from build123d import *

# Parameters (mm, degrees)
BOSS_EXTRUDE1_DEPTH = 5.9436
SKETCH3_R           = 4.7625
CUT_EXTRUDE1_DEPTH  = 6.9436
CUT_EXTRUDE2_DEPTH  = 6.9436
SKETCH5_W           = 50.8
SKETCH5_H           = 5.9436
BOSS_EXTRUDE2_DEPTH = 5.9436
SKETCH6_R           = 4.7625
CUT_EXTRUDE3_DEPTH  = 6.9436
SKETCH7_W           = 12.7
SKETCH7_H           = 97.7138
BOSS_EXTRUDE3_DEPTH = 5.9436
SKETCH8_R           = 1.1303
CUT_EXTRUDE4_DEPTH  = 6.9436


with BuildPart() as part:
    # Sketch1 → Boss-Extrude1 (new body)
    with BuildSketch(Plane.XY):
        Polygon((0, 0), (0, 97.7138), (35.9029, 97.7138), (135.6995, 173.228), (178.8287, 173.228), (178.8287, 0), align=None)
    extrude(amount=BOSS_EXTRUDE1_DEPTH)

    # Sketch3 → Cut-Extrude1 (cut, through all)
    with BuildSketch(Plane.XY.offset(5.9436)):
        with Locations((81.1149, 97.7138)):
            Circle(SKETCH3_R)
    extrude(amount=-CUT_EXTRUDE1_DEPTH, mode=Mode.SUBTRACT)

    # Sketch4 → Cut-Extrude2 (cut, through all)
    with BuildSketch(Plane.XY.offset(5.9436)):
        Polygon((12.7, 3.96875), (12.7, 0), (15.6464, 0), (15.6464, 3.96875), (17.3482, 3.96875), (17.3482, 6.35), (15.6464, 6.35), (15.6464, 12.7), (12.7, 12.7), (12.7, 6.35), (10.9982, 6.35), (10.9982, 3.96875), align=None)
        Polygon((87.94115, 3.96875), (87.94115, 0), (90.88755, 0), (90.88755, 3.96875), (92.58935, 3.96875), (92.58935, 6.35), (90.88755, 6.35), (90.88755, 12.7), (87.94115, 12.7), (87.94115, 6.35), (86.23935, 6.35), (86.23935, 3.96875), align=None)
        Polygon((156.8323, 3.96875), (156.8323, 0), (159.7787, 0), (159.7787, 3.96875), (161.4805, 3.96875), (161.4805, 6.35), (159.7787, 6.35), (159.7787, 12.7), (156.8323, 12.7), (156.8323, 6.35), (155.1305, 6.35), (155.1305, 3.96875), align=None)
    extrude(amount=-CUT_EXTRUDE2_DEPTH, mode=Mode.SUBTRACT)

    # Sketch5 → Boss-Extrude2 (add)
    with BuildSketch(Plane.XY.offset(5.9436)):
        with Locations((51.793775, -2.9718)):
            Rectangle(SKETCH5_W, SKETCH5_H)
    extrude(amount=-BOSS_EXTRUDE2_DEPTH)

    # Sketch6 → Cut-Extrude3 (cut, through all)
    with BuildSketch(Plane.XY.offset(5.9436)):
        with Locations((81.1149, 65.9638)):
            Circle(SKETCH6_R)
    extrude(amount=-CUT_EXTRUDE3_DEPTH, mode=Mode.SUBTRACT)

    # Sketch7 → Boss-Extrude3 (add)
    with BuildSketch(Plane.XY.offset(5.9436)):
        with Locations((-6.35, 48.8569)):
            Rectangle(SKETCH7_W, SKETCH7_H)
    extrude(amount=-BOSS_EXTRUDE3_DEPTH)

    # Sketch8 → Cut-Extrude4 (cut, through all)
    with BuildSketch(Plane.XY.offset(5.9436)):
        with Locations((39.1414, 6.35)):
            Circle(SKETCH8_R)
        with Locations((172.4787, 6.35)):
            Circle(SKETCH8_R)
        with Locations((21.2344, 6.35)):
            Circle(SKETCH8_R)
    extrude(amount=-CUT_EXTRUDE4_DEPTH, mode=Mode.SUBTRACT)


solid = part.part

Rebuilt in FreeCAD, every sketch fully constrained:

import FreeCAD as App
import Part
import Sketcher
Q = App.Units.Quantity

doc = App.newDocument("Part")
body = doc.addObject("PartDesign::Body", "Body")

sketch1 = body.newObject("Sketcher::SketchObject", "Sketch")
sketch1.AttachmentSupport = (doc.getObject("XY_Plane"), [""])
sketch1.MapMode = "FlatFace"
sketch1.addGeometry([
    Part.LineSegment(App.Vector(0, 97.7138, 0), App.Vector(0, 0, 0)),
    Part.LineSegment(App.Vector(0, 0, 0), App.Vector(178.8287, 0, 0)),
    Part.LineSegment(App.Vector(178.8287, 0, 0), App.Vector(178.8287, 173.228, 0)),
    Part.LineSegment(App.Vector(178.8287, 173.228, 0), App.Vector(135.6995, 173.228, 0)),
    Part.LineSegment(App.Vector(135.6995, 173.228, 0), App.Vector(35.9029, 97.7138, 0)),
    Part.LineSegment(App.Vector(35.9029, 97.7138, 0), App.Vector(0, 97.7138, 0)),
], False)
sketch1.addConstraint([
    Sketcher.Constraint("Coincident", 0, 2, 1, 1),
    Sketcher.Constraint("Coincident", 1, 2, 2, 1),
    Sketcher.Constraint("Coincident", 2, 2, 3, 1),
    Sketcher.Constraint("Coincident", 3, 2, 4, 1),
    Sketcher.Constraint("Coincident", 4, 2, 5, 1),
    Sketcher.Constraint("Coincident", 5, 2, 0, 1),
    Sketcher.Constraint("Vertical", 0),
    Sketcher.Constraint("Horizontal", 1),
    Sketcher.Constraint("Vertical", 2),
    Sketcher.Constraint("Horizontal", 3),
    Sketcher.Constraint("Horizontal", 5),
    Sketcher.Constraint("Coincident", 0, 2, -1, 1),
    Sketcher.Constraint("DistanceY", 2, 1, 2, 2, Q("6.82 in")),
    Sketcher.Constraint("DistanceX", 3, 2, 3, 1, Q("1.698 in")),
    Sketcher.Constraint("DistanceY", 0, 2, 0, 1, Q("3.847 in")),
    Sketcher.Constraint("DistanceX", 1, 1, 1, 2, Q("7.0405 in")),
    Sketcher.Constraint("DistanceX", 5, 2, 5, 1, Q("1.4135 in")),
])
pad1 = body.newObject("PartDesign::Pad", "Pad")
pad1.Profile = sketch1
pad1.Length = Q("0.234 in")

sketch2 = body.newObject("Sketcher::SketchObject", "Sketch001")
sketch2.AttachmentSupport = (doc.getObject("XY_Plane"), [""])
sketch2.MapMode = "FlatFace"
sketch2.AttachmentOffset = App.Placement(App.Vector(0, 0, 0.234 * 25.4), App.Rotation())
sketch2.addGeometry(Part.Circle(App.Vector(81.1149, 97.7138, 0), App.Vector(0, 0, 1), 4.7625), False)
sketch2.addConstraint([
    Sketcher.Constraint("Diameter", 0, Q("0.375 in")),
    Sketcher.Constraint("DistanceY", -1, 1, 0, 3, Q("3.847 in")),
    Sketcher.Constraint("DistanceX", -1, 1, 0, 3, Q("3.1935 in")),
])
pocket1 = body.newObject("PartDesign::Pocket", "Pocket")
pocket1.Profile = sketch2
pocket1.Type = "ThroughAll"

sketch3 = body.newObject("Sketcher::SketchObject", "Sketch002")
sketch3.AttachmentSupport = (doc.getObject("XY_Plane"), [""])
sketch3.MapMode = "FlatFace"
sketch3.AttachmentOffset = App.Placement(App.Vector(0, 0, 0.234 * 25.4), App.Rotation())
sketch3.addGeometry([
    Part.LineSegment(App.Vector(12.7, 3.96875, 0), App.Vector(12.7, 0, 0)),
    Part.LineSegment(App.Vector(12.7, 0, 0), App.Vector(15.6464, 0, 0)),
    Part.LineSegment(App.Vector(15.6464, 0, 0), App.Vector(15.6464, 3.96875, 0)),
    Part.LineSegment(App.Vector(15.6464, 3.96875, 0), App.Vector(17.3482, 3.96875, 0)),
    Part.LineSegment(App.Vector(17.3482, 3.96875, 0), App.Vector(17.3482, 6.35, 0)),
    Part.LineSegment(App.Vector(17.3482, 6.35, 0), App.Vector(15.6464, 6.35, 0)),
    Part.LineSegment(App.Vector(15.6464, 6.35, 0), App.Vector(15.6464, 12.7, 0)),
    Part.LineSegment(App.Vector(15.6464, 12.7, 0), App.Vector(12.7, 12.7, 0)),
    Part.LineSegment(App.Vector(12.7, 12.7, 0), App.Vector(12.7, 6.35, 0)),
    Part.LineSegment(App.Vector(12.7, 6.35, 0), App.Vector(10.9982, 6.35, 0)),
    Part.LineSegment(App.Vector(10.9982, 6.35, 0), App.Vector(10.9982, 3.96875, 0)),
    Part.LineSegment(App.Vector(10.9982, 3.96875, 0), App.Vector(12.7, 3.96875, 0)),
    Part.LineSegment(App.Vector(87.94115, 3.96875, 0), App.Vector(87.94115, 0, 0)),
    Part.LineSegment(App.Vector(87.94115, 0, 0), App.Vector(90.88755, 0, 0)),
    Part.LineSegment(App.Vector(90.88755, 0, 0), App.Vector(90.88755, 3.96875, 0)),
    Part.LineSegment(App.Vector(90.88755, 3.96875, 0), App.Vector(92.58935, 3.96875, 0)),
    Part.LineSegment(App.Vector(92.58935, 3.96875, 0), App.Vector(92.58935, 6.35, 0)),
    Part.LineSegment(App.Vector(92.58935, 6.35, 0), App.Vector(90.88755, 6.35, 0)),
    Part.LineSegment(App.Vector(90.88755, 6.35, 0), App.Vector(90.88755, 12.7, 0)),
    Part.LineSegment(App.Vector(90.88755, 12.7, 0), App.Vector(87.94115, 12.7, 0)),
    Part.LineSegment(App.Vector(87.94115, 12.7, 0), App.Vector(87.94115, 6.35, 0)),
    Part.LineSegment(App.Vector(87.94115, 6.35, 0), App.Vector(86.23935, 6.35, 0)),
    Part.LineSegment(App.Vector(86.23935, 6.35, 0), App.Vector(86.23935, 3.96875, 0)),
    Part.LineSegment(App.Vector(86.23935, 3.96875, 0), App.Vector(87.94115, 3.96875, 0)),
    Part.LineSegment(App.Vector(156.8323, 3.96875, 0), App.Vector(156.8323, 0, 0)),
    Part.LineSegment(App.Vector(156.8323, 0, 0), App.Vector(159.7787, 0, 0)),
    Part.LineSegment(App.Vector(159.7787, 0, 0), App.Vector(159.7787, 3.96875, 0)),
    Part.LineSegment(App.Vector(159.7787, 3.96875, 0), App.Vector(161.4805, 3.96875, 0)),
    Part.LineSegment(App.Vector(161.4805, 3.96875, 0), App.Vector(161.4805, 6.35, 0)),
    Part.LineSegment(App.Vector(161.4805, 6.35, 0), App.Vector(159.7787, 6.35, 0)),
    Part.LineSegment(App.Vector(159.7787, 6.35, 0), App.Vector(159.7787, 12.7, 0)),
    Part.LineSegment(App.Vector(159.7787, 12.7, 0), App.Vector(156.8323, 12.7, 0)),
    Part.LineSegment(App.Vector(156.8323, 12.7, 0), App.Vector(156.8323, 6.35, 0)),
    Part.LineSegment(App.Vector(156.8323, 6.35, 0), App.Vector(155.1305, 6.35, 0)),
    Part.LineSegment(App.Vector(155.1305, 6.35, 0), App.Vector(155.1305, 3.96875, 0)),
    Part.LineSegment(App.Vector(155.1305, 3.96875, 0), App.Vector(156.8323, 3.96875, 0)),
], False)
sketch3.addConstraint([
    Sketcher.Constraint("Coincident", 0, 2, 1, 1),
    Sketcher.Constraint("Coincident", 1, 2, 2, 1),
    Sketcher.Constraint("Coincident", 2, 2, 3, 1),
    Sketcher.Constraint("Coincident", 3, 2, 4, 1),
    Sketcher.Constraint("Coincident", 4, 2, 5, 1),
    Sketcher.Constraint("Coincident", 5, 2, 6, 1),
    Sketcher.Constraint("Coincident", 6, 2, 7, 1),
    Sketcher.Constraint("Coincident", 7, 2, 8, 1),
    Sketcher.Constraint("Coincident", 8, 2, 9, 1),
    Sketcher.Constraint("Coincident", 9, 2, 10, 1),
    Sketcher.Constraint("Coincident", 10, 2, 11, 1),
    Sketcher.Constraint("Coincident", 11, 2, 0, 1),
    Sketcher.Constraint("Coincident", 12, 2, 13, 1),
    Sketcher.Constraint("Coincident", 13, 2, 14, 1),
    Sketcher.Constraint("Coincident", 14, 2, 15, 1),
    Sketcher.Constraint("Coincident", 15, 2, 16, 1),
    Sketcher.Constraint("Coincident", 16, 2, 17, 1),
    Sketcher.Constraint("Coincident", 17, 2, 18, 1),
    Sketcher.Constraint("Coincident", 18, 2, 19, 1),
    Sketcher.Constraint("Coincident", 19, 2, 20, 1),
    Sketcher.Constraint("Coincident", 20, 2, 21, 1),
    Sketcher.Constraint("Coincident", 21, 2, 22, 1),
    Sketcher.Constraint("Coincident", 22, 2, 23, 1),
    Sketcher.Constraint("Coincident", 23, 2, 12, 1),
    Sketcher.Constraint("Coincident", 24, 2, 25, 1),
    Sketcher.Constraint("Coincident", 25, 2, 26, 1),
    Sketcher.Constraint("Coincident", 26, 2, 27, 1),
    Sketcher.Constraint("Coincident", 27, 2, 28, 1),
    Sketcher.Constraint("Coincident", 28, 2, 29, 1),
    Sketcher.Constraint("Coincident", 29, 2, 30, 1),
    Sketcher.Constraint("Coincident", 30, 2, 31, 1),
    Sketcher.Constraint("Coincident", 31, 2, 32, 1),
    Sketcher.Constraint("Coincident", 32, 2, 33, 1),
    Sketcher.Constraint("Coincident", 33, 2, 34, 1),
    Sketcher.Constraint("Coincident", 34, 2, 35, 1),
    Sketcher.Constraint("Coincident", 35, 2, 24, 1),
    Sketcher.Constraint("Vertical", 0),
    Sketcher.Constraint("Horizontal", 1),
    Sketcher.Constraint("Vertical", 2),
    Sketcher.Constraint("Horizontal", 3),
    Sketcher.Constraint("Vertical", 4),
    Sketcher.Constraint("Horizontal", 5),
    Sketcher.Constraint("Vertical", 6),
    Sketcher.Constraint("Horizontal", 7),
    Sketcher.Constraint("Vertical", 8),
    Sketcher.Constraint("Horizontal", 9),
    Sketcher.Constraint("Vertical", 10),
    Sketcher.Constraint("Horizontal", 11),
    Sketcher.Constraint("Vertical", 12),
    Sketcher.Constraint("Horizontal", 13),
    Sketcher.Constraint("Vertical", 14),
    Sketcher.Constraint("Horizontal", 15),
    Sketcher.Constraint("Vertical", 16),
    Sketcher.Constraint("Horizontal", 17),
    Sketcher.Constraint("Vertical", 18),
    Sketcher.Constraint("Horizontal", 19),
    Sketcher.Constraint("Vertical", 20),
    Sketcher.Constraint("Horizontal", 21),
    Sketcher.Constraint("Vertical", 22),
    Sketcher.Constraint("Horizontal", 23),
    Sketcher.Constraint("Vertical", 24),
    Sketcher.Constraint("Horizontal", 25),
    Sketcher.Constraint("Vertical", 26),
    Sketcher.Constraint("Horizontal", 27),
    Sketcher.Constraint("Vertical", 28),
    Sketcher.Constraint("Horizontal", 29),
    Sketcher.Constraint("Vertical", 30),
    Sketcher.Constraint("Horizontal", 31),
    Sketcher.Constraint("Vertical", 32),
    Sketcher.Constraint("Horizontal", 33),
    Sketcher.Constraint("Vertical", 34),
    Sketcher.Constraint("Horizontal", 35),
    Sketcher.Constraint("PointOnObject", 0, 2, -1),
    Sketcher.Constraint("PointOnObject", 12, 2, -1),
    Sketcher.Constraint("PointOnObject", 24, 2, -1),
    Sketcher.Constraint("Horizontal", 5, 2, 8, 2),
    Sketcher.Constraint("Horizontal", 3, 2, 10, 2),
    Sketcher.Constraint("Horizontal", 11, 2, 14, 2),
    Sketcher.Constraint("Horizontal", 9, 2, 16, 2),
    Sketcher.Constraint("Horizontal", 7, 2, 18, 2),
    Sketcher.Constraint("Horizontal", 17, 2, 20, 2),
    Sketcher.Constraint("Horizontal", 15, 2, 22, 2),
    Sketcher.Constraint("Horizontal", 23, 2, 26, 2),
    Sketcher.Constraint("Horizontal", 21, 2, 28, 2),
    Sketcher.Constraint("Horizontal", 19, 2, 30, 2),
    Sketcher.Constraint("Horizontal", 29, 2, 32, 2),
    Sketcher.Constraint("Horizontal", 27, 2, 34, 2),
    Sketcher.Constraint("Vertical", 2, 2, 5, 2),
    Sketcher.Constraint("Vertical", 0, 2, 7, 2),
    Sketcher.Constraint("Vertical", 14, 2, 17, 2),
    Sketcher.Constraint("Vertical", 12, 2, 19, 2),
    Sketcher.Constraint("Vertical", 26, 2, 29, 2),
    Sketcher.Constraint("Vertical", 24, 2, 31, 2),
    Sketcher.Constraint("Equal", 5, 9),
    Sketcher.Constraint("Equal", 7, 13),
    Sketcher.Constraint("Equal", 11, 15),
    Sketcher.Constraint("Equal", 17, 21),
    Sketcher.Constraint("Equal", 19, 25),
    Sketcher.Constraint("Equal", 23, 27),
    Sketcher.Constraint("Equal", 29, 33),
    Sketcher.Constraint("DistanceY", 6, 1, 6, 2, Q("0.25 in")),
    Sketcher.Constraint("DistanceX", -1, 1, 0, 2, Q("0.5 in")),
    Sketcher.Constraint("DistanceY", -1, 1, 6, 2, Q("0.5 in")),
    Sketcher.Constraint("DistanceX", 1, 1, 1, 2, Q("0.116 in")),
    Sketcher.Constraint("DistanceX", 3, 1, 3, 2, Q("0.067 in")),
    Sketcher.Constraint("DistanceY", 0, 2, 0, 1, Q("0.15625 in")),
    Sketcher.Constraint("DistanceX", -1, 1, 24, 2, Q("6.1745 in")),
    Sketcher.Constraint("DistanceX", -1, 1, 12, 2, 87.94115),
])
pocket2 = body.newObject("PartDesign::Pocket", "Pocket001")
pocket2.Profile = sketch3
pocket2.Type = "ThroughAll"

sketch4 = body.newObject("Sketcher::SketchObject", "Sketch003")
sketch4.AttachmentSupport = (doc.getObject("XY_Plane"), [""])
sketch4.MapMode = "FlatFace"
sketch4.AttachmentOffset = App.Placement(App.Vector(0, 0, 0.234 * 25.4), App.Rotation())
sketch4.addGeometry([
    Part.LineSegment(App.Vector(26.393775, 0, 0), App.Vector(26.393775, -5.9436, 0)),
    Part.LineSegment(App.Vector(26.393775, -5.9436, 0), App.Vector(77.193775, -5.9436, 0)),
    Part.LineSegment(App.Vector(77.193775, -5.9436, 0), App.Vector(77.193775, 0, 0)),
    Part.LineSegment(App.Vector(77.193775, 0, 0), App.Vector(26.393775, 0, 0)),
], False)
sketch4.addConstraint([
    Sketcher.Constraint("Coincident", 0, 2, 1, 1),
    Sketcher.Constraint("Coincident", 1, 2, 2, 1),
    Sketcher.Constraint("Coincident", 2, 2, 3, 1),
    Sketcher.Constraint("Coincident", 3, 2, 0, 1),
    Sketcher.Constraint("Vertical", 0),
    Sketcher.Constraint("Horizontal", 1),
    Sketcher.Constraint("Vertical", 2),
    Sketcher.Constraint("Horizontal", 3),
    Sketcher.Constraint("PointOnObject", 2, 2, -1),
    Sketcher.Constraint("DistanceX", 1, 1, 1, 2, Q("2 in")),
    Sketcher.Constraint("DistanceY", 0, 2, 0, 1, Q("0.234 in")),
    Sketcher.Constraint("DistanceX", -1, 1, 0, 2, 26.393775),
])
pad2 = body.newObject("PartDesign::Pad", "Pad001")
pad2.Profile = sketch4
pad2.Length = Q("0.234 in")
pad2.Reversed = True

sketch5 = body.newObject("Sketcher::SketchObject", "Sketch004")
sketch5.AttachmentSupport = (doc.getObject("XY_Plane"), [""])
sketch5.MapMode = "FlatFace"
sketch5.AttachmentOffset = App.Placement(App.Vector(0, 0, 0.234 * 25.4), App.Rotation())
sketch5.addGeometry(Part.Circle(App.Vector(81.1149, 65.9638, 0), App.Vector(0, 0, 1), 4.7625), False)
sketch5.addConstraint([
    Sketcher.Constraint("Diameter", 0, Q("0.375 in")),
    Sketcher.Constraint("DistanceY", -1, 1, 0, 3, Q("2.597 in")),
    Sketcher.Constraint("DistanceX", -1, 1, 0, 3, Q("3.1935 in")),
])
pocket3 = body.newObject("PartDesign::Pocket", "Pocket002")
pocket3.Profile = sketch5
pocket3.Type = "ThroughAll"

sketch6 = body.newObject("Sketcher::SketchObject", "Sketch005")
sketch6.AttachmentSupport = (doc.getObject("XY_Plane"), [""])
sketch6.MapMode = "FlatFace"
sketch6.AttachmentOffset = App.Placement(App.Vector(0, 0, 0.234 * 25.4), App.Rotation())
sketch6.addGeometry([
    Part.LineSegment(App.Vector(-12.7, 97.7138, 0), App.Vector(-12.7, 0, 0)),
    Part.LineSegment(App.Vector(-12.7, 0, 0), App.Vector(0, 0, 0)),
    Part.LineSegment(App.Vector(0, 0, 0), App.Vector(0, 97.7138, 0)),
    Part.LineSegment(App.Vector(0, 97.7138, 0), App.Vector(-12.7, 97.7138, 0)),
], False)
sketch6.addConstraint([
    Sketcher.Constraint("Coincident", 0, 2, 1, 1),
    Sketcher.Constraint("Coincident", 1, 2, 2, 1),
    Sketcher.Constraint("Coincident", 2, 2, 3, 1),
    Sketcher.Constraint("Coincident", 3, 2, 0, 1),
    Sketcher.Constraint("Vertical", 0),
    Sketcher.Constraint("Horizontal", 1),
    Sketcher.Constraint("Vertical", 2),
    Sketcher.Constraint("Horizontal", 3),
    Sketcher.Constraint("Coincident", 1, 2, -1, 1),
    Sketcher.Constraint("DistanceX", 1, 1, 1, 2, Q("0.5 in")),
    Sketcher.Constraint("DistanceY", 0, 2, 0, 1, Q("3.847 in")),
])
pad3 = body.newObject("PartDesign::Pad", "Pad002")
pad3.Profile = sketch6
pad3.Length = Q("0.234 in")
pad3.Reversed = True

sketch7 = body.newObject("Sketcher::SketchObject", "Sketch006")
sketch7.AttachmentSupport = (doc.getObject("XY_Plane"), [""])
sketch7.MapMode = "FlatFace"
sketch7.AttachmentOffset = App.Placement(App.Vector(0, 0, 0.234 * 25.4), App.Rotation())
sketch7.addGeometry([
    Part.Circle(App.Vector(39.1414, 6.35, 0), App.Vector(0, 0, 1), 1.1303),
    Part.Circle(App.Vector(172.4787, 6.35, 0), App.Vector(0, 0, 1), 1.1303),
    Part.Circle(App.Vector(21.2344, 6.35, 0), App.Vector(0, 0, 1), 1.1303),
], False)
sketch7.addConstraint([
    Sketcher.Constraint("Equal", 0, 1),
    Sketcher.Constraint("Equal", 1, 2),
    Sketcher.Constraint("Horizontal", 0, 3, 1, 3),
    Sketcher.Constraint("Horizontal", 1, 3, 2, 3),
    Sketcher.Constraint("Diameter", 0, Q("0.089 in")),
    Sketcher.Constraint("DistanceY", -1, 1, 0, 3, Q("0.25 in")),
    Sketcher.Constraint("DistanceX", -1, 1, 0, 3, Q("1.541 in")),
    Sketcher.Constraint("DistanceX", -1, 1, 2, 3, Q("0.836 in")),
    Sketcher.Constraint("DistanceX", -1, 1, 1, 3, Q("6.7905 in")),
])
pocket4 = body.newObject("PartDesign::Pocket", "Pocket003")
pocket4.Profile = sketch7
pocket4.Type = "ThroughAll"

doc.recompute()
